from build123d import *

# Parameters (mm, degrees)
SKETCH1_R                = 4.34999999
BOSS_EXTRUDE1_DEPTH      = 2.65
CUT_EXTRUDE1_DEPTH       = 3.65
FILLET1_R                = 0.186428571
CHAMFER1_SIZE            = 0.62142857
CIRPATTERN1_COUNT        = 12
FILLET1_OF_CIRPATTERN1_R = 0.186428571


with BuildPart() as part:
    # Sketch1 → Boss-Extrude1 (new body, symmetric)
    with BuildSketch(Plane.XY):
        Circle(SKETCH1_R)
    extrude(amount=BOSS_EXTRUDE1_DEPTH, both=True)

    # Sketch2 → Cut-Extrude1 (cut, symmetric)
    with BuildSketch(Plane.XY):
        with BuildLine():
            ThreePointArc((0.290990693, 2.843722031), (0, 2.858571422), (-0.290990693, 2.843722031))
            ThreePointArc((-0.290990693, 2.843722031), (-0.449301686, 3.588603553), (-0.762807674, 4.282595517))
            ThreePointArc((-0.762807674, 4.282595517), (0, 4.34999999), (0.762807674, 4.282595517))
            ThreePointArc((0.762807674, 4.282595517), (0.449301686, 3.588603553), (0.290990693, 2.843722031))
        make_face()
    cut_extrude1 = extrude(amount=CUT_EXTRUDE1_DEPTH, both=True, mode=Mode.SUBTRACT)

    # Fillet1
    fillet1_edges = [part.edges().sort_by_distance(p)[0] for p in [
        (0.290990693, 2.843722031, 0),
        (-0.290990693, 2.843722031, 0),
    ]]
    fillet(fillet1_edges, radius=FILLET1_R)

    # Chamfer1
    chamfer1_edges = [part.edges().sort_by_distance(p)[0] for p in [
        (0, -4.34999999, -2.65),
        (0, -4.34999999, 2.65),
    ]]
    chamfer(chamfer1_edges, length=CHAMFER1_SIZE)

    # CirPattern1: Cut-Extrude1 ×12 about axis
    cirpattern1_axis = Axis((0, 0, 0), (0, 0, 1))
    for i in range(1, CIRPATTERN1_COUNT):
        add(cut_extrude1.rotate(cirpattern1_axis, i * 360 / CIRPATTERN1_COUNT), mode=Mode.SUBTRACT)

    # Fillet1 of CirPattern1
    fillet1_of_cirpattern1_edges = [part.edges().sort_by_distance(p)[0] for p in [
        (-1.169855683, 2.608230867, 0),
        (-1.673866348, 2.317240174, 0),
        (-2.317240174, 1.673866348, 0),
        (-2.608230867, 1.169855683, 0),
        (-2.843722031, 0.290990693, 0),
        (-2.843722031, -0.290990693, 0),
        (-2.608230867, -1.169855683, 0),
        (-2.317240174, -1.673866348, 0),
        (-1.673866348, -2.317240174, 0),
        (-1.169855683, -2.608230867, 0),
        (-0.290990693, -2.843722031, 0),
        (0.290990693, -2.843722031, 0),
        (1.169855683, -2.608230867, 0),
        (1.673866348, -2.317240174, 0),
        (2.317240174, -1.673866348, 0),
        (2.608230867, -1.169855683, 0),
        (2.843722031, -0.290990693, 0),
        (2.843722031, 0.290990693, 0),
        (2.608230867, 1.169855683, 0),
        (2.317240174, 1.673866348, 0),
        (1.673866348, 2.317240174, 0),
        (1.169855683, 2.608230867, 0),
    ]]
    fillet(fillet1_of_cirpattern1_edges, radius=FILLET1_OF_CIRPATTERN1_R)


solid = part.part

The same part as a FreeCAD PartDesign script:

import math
import FreeCAD as App
import Part
import Sketcher

V = App.Vector
Q = App.Units.Quantity


def edges_at(feature, points):
    """Names of the edges that pass closest to the given points."""
    edges = feature.Shape.Edges
    near = lambda p: min(range(len(edges)), key=lambda i: edges[i].distToShape(Part.Vertex(*p))[0])
    return sorted({f"Edge{near(p) + 1}" for p in points})

doc = App.newDocument("Part")
body = doc.addObject("PartDesign::Body", "Body")

# Sketch on XY plane
sketch1 = body.newObject("Sketcher::SketchObject", "Sketch")
sketch1.AttachmentSupport = (doc.getObject("XY_Plane"), [""])
sketch1.MapMode = "FlatFace"
sketch1.addGeometry(Part.Circle(V(0, 0, 0), V(0, 0, 1), 4.35), False)
sketch1.addConstraint(Sketcher.Constraint("Coincident", 0, 3, -1, 1))
sketch1.addConstraint(Sketcher.Constraint("Diameter", 0, Q("8.7 mm")))
pad1 = body.newObject("PartDesign::Pad", "Pad")
pad1.Profile = sketch1
pad1.Length = 5.3
pad1.Midplane = True

# Sketch on XY plane
sketch2 = body.newObject("Sketcher::SketchObject", "Sketch001")
sketch2.AttachmentSupport = (doc.getObject("XY_Plane"), [""])
sketch2.MapMode = "FlatFace"
sketch2.addGeometry(Part.ArcOfCircle(Part.Circle(V(0, 0, 0), V(0, 0, 1), 2.858571), math.radians(84.157407), math.radians(95.842593)), False)
sketch2.addGeometry(Part.ArcOfCircle(Part.Circle(V(3.82319, 2.482281, 0), V(0, 0, 1), 3.550644), math.radians(149.533213), math.radians(174.157407)), False)
sketch2.addGeometry(Part.ArcOfCircle(Part.Circle(V(0, 0, 0), V(0, 0, 1), 4.35), math.radians(79.900503), math.radians(100.099497)), False)
sketch2.addGeometry(Part.ArcOfCircle(Part.Circle(V(-3.82319, 2.482281, 0), V(0, 0, 1), 3.550644), math.radians(5.842593), math.radians(30.466787)), False)
sketch2.addConstraint(Sketcher.Constraint("Coincident", 0, 1, 1, 2))
sketch2.addConstraint(Sketcher.Constraint("Coincident", 1, 1, 2, 1))
sketch2.addConstraint(Sketcher.Constraint("Coincident", 2, 2, 3, 2))
sketch2.addConstraint(Sketcher.Constraint("Coincident", 3, 1, 0, 2))
sketch2.addConstraint(Sketcher.Constraint("Coincident", 0, 3, -1, 1))
sketch2.addConstraint(Sketcher.Constraint("Coincident", 2, 3, -1, 1))
sketch2.addConstraint(Sketcher.Constraint("Equal", 1, 3))
sketch2.addConstraint(Sketcher.Constraint("Symmetric", 1, 3, 3, 3, -2))
sketch2.addConstraint(Sketcher.Constraint("Radius", 2, Q("4.35 mm")))
sketch2.addConstraint(Sketcher.Constraint("Radius", 0, Q("2.858571 mm")))
sketch2.addConstraint(Sketcher.Constraint("Radius", 1, Q("3.550644 mm")))
sketch2.addConstraint(Sketcher.Constraint("DistanceX", 0, 1, 1, 3, Q("3.532199 mm")))
sketch2.addConstraint(Sketcher.Constraint("DistanceX", 2, 2, 0, 1, Q("1.053798 mm")))
pocket1 = body.newObject("PartDesign::Pocket", "Pocket")
pocket1.Profile = sketch2
pocket1.Length = 7.3
pocket1.Midplane = True
doc.recompute()

fillet = body.newObject("PartDesign::Fillet", "Fillet")
fillet.Base = (pocket1, edges_at(pocket1, [(0.291, 2.844, 0), (-0.291, 2.844, 0)]))
fillet.Radius = 0.186429
doc.recompute()

chamfer = body.newObject("PartDesign::Chamfer", "Chamfer")
chamfer.Base = (fillet, edges_at(fillet, [(0, -4.35, -2.65), (0, -4.35, 2.65)]))
chamfer.Size = 0.621429
doc.recompute()

polarpattern = body.newObject("PartDesign::PolarPattern", "PolarPattern")
polarpattern.Originals = [pocket1]
polarpattern.Axis = (doc.getObject("Z_Axis"), [""])
polarpattern.Angle = 360
polarpattern.Occurrences = 12
body.Tip = polarpattern
doc.recompute()

fillet2 = body.newObject("PartDesign::Fillet", "Fillet001")
fillet2.Base = (polarpattern, edges_at(polarpattern, [
    (-1.17, 2.608, 0),
    (-1.674, 2.317, 0),
    (-2.317, 1.674, 0),
    (-2.608, 1.17, 0),
    (-2.844, 0.291, 0),
    (-2.844, -0.291, 0),
    (-2.608, -1.17, 0),
    (-2.317, -1.674, 0),
    (-1.674, -2.317, 0),
    (-1.17, -2.608, 0),
    (-0.291, -2.844, 0),
    (0.291, -2.844, 0),
    (1.17, -2.608, 0),
    (1.674, -2.317, 0),
    (2.317, -1.674, 0),
    (2.608, -1.17, 0),
    (2.844, -0.291, 0),
    (2.844, 0.291, 0),
    (2.608, 1.17, 0),
    (2.317, 1.674, 0),
    (1.674, 2.317, 0),
    (1.17, 2.608, 0),
]))
fillet2.Radius = 0.186429

doc.recompute()
